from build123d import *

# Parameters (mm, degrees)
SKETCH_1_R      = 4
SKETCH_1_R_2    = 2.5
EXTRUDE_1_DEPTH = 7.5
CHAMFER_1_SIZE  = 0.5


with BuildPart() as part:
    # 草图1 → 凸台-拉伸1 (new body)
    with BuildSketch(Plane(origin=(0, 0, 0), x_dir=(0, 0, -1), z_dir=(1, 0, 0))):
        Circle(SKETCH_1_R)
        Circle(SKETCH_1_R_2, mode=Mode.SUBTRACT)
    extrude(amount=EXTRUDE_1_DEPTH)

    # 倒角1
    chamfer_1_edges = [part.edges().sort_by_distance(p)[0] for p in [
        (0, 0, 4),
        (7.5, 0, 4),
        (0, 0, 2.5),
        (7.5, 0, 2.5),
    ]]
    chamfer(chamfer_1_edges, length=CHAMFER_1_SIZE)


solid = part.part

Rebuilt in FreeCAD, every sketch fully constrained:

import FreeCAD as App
import Part
import Sketcher

V = App.Vector
Q = App.Units.Quantity


def edges_at(feature, points):
    """Names of the edges that pass closest to the given points."""
    edges = feature.Shape.Edges
    near = lambda p: min(range(len(edges)), key=lambda i: edges[i].distToShape(Part.Vertex(*p))[0])
    return sorted({f"Edge{near(p) + 1}" for p in points})

doc = App.newDocument("Part")
params = doc.addObject("Spreadsheet::Sheet", "Params")
for row, (alias, value) in enumerate([
    ("sketch1_diameter", "8 mm"),
    ("sketch1_diameter2", "5 mm"),
    ("pad1_length", "7.5 mm"),
    ("chamfer_size", "0.5 mm"),
], start=1):
    params.set(f"A{row}", alias)
    params.set(f"B{row}", "=" + value)
    params.setAlias(f"B{row}", alias)

body = doc.addObject("PartDesign::Body", "Body")

# Sketch on YZ plane
sketch1 = doc.addObject("Sketcher::SketchObject", "Sketch")
body.addObject(sketch1)
sketch1.AttachmentSupport = (doc.YZ_Plane, [""])
sketch1.MapMode = "FlatFace"
sketch1.addGeometry(Part.Circle(V(0, 0, 0), V(0, 0, 1), 4), False)
sketch1.addGeometry(Part.Circle(V(0, 0, 0), V(0, 0, 1), 2.5), False)
sketch1.addConstraint(Sketcher.Constraint("Coincident", 0, 3, -1, 1))
sketch1.addConstraint(Sketcher.Constraint("Coincident", 1, 3, -1, 1))
sketch1.addConstraint(Sketcher.Constraint("Diameter", 0, Q("8 mm")))
sketch1.addConstraint(Sketcher.Constraint("Diameter", 1, Q("5 mm")))
sketch1.setExpression("Constraints[2]", "Params.sketch1_diameter")
sketch1.setExpression("Constraints[3]", "Params.sketch1_diameter2")
pad1 = doc.addObject("PartDesign::Pad", "Pad")
body.addObject(pad1)
pad1.Profile = sketch1
pad1.setExpression("Length", "Params.pad1_length")
doc.recompute()

chamfer = doc.addObject("PartDesign::Chamfer", "Chamfer")
body.addObject(chamfer)
chamfer.Base = (pad1, edges_at(pad1, [
    (0, 0, 4),
    (7.5, 0, 4),
    (0, 0, 2.5),
    (7.5, 0, 2.5),
]))
chamfer.setExpression("Size", "Params.chamfer_size")

doc.recompute()
